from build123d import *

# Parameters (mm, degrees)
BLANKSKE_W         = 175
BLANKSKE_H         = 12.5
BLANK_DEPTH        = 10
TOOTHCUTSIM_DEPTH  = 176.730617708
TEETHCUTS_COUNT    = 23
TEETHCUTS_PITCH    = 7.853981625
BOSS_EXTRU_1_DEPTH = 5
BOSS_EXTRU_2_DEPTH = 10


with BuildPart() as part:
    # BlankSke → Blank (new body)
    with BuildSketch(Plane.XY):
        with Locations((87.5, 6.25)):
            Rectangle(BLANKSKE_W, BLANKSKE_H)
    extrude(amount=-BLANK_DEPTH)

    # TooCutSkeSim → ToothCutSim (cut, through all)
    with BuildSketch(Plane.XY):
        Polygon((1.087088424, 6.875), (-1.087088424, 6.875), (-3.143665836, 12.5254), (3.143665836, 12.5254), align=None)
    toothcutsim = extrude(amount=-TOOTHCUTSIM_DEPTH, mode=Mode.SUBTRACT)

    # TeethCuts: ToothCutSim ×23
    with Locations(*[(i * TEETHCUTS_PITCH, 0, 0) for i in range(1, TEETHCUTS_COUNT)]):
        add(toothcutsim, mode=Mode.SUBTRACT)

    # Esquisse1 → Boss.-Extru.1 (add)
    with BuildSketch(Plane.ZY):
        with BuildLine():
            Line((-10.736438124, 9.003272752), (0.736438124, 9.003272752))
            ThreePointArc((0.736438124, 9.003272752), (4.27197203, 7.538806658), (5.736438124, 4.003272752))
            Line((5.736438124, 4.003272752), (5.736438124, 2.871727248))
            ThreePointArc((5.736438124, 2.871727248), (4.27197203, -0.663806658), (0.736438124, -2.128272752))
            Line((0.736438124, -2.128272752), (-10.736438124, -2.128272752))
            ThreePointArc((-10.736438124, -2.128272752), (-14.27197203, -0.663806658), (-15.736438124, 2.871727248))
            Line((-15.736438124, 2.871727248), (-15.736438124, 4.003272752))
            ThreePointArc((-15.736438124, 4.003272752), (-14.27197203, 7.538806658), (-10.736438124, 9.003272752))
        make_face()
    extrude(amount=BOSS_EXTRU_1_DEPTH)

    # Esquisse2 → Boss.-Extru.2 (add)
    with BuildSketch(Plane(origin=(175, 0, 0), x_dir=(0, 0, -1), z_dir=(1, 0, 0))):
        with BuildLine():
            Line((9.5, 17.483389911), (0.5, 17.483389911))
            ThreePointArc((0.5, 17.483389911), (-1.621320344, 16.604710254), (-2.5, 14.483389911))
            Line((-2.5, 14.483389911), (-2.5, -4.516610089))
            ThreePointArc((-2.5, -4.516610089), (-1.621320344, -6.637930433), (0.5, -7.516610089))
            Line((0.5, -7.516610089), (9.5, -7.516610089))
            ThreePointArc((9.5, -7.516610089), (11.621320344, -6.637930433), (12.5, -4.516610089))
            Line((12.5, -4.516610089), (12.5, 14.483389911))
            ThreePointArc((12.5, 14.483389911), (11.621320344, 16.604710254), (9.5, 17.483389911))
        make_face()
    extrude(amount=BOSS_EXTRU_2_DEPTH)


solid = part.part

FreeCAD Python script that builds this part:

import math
import FreeCAD as App
import Part
import Sketcher
Q = App.Units.Quantity

doc = App.newDocument("Part")
body = doc.addObject("PartDesign::Body", "Body")

sketch1 = body.newObject("Sketcher::SketchObject", "Sketch")
sketch1.AttachmentSupport = (doc.getObject("XY_Plane"), [""])
sketch1.MapMode = "FlatFace"
sketch1.addGeometry(Part.LineSegment(App.Vector(0, 12.5, 0), App.Vector(0, 0, 0)), False)
sketch1.addGeometry(Part.LineSegment(App.Vector(0, 0, 0), App.Vector(175, 0, 0)), False)
sketch1.addGeometry(Part.LineSegment(App.Vector(175, 0, 0), App.Vector(175, 12.5, 0)), False)
sketch1.addGeometry(Part.LineSegment(App.Vector(175, 12.5, 0), App.Vector(0, 12.5, 0)), False)
sketch1.addConstraint(Sketcher.Constraint("Coincident", 0, 2, 1, 1))
sketch1.addConstraint(Sketcher.Constraint("Coincident", 1, 2, 2, 1))
sketch1.addConstraint(Sketcher.Constraint("Coincident", 2, 2, 3, 1))
sketch1.addConstraint(Sketcher.Constraint("Coincident", 3, 2, 0, 1))
sketch1.addConstraint(Sketcher.Constraint("Vertical", 0))
sketch1.addConstraint(Sketcher.Constraint("Horizontal", 1))
sketch1.addConstraint(Sketcher.Constraint("Vertical", 2))
sketch1.addConstraint(Sketcher.Constraint("Horizontal", 3))
sketch1.addConstraint(Sketcher.Constraint("Coincident", 0, 2, -1, 1))
sketch1.addConstraint(Sketcher.Constraint("DistanceX", 1, 1, 1, 2, Q("175 mm")))
sketch1.addConstraint(Sketcher.Constraint("DistanceY", 0, 2, 0, 1, Q("12.5 mm")))
pad1 = body.newObject("PartDesign::Pad", "Pad")
pad1.Profile = sketch1
pad1.Length = 10
pad1.Reversed = True

sketch2 = body.newObject("Sketcher::SketchObject", "Sketch001")
sketch2.AttachmentSupport = (doc.getObject("XY_Plane"), [""])
sketch2.MapMode = "FlatFace"
sketch2.addGeometry(Part.LineSegment(App.Vector(-1.087088, 6.875, 0), App.Vector(1.087088, 6.875, 0)), False)
sketch2.addGeometry(Part.LineSegment(App.Vector(1.087088, 6.875, 0), App.Vector(3.143666, 12.5254, 0)), False)
sketch2.addGeometry(Part.LineSegment(App.Vector(3.143666, 12.5254, 0), App.Vector(-3.143666, 12.5254, 0)), False)
sketch2.addGeometry(Part.LineSegment(App.Vector(-3.143666, 12.5254, 0), App.Vector(-1.087088, 6.875, 0)), False)
sketch2.addConstraint(Sketcher.Constraint("Coincident", 0, 2, 1, 1))
sketch2.addConstraint(Sketcher.Constraint("Coincident", 1, 2, 2, 1))
sketch2.addConstraint(Sketcher.Constraint("Coincident", 2, 2, 3, 1))
sketch2.addConstraint(Sketcher.Constraint("Coincident", 3, 2, 0, 1))
sketch2.addConstraint(Sketcher.Constraint("Horizontal", 0))
sketch2.addConstraint(Sketcher.Constraint("Horizontal", 2))
sketch2.addConstraint(Sketcher.Constraint("Equal", 1, 3))
sketch2.addConstraint(Sketcher.Constraint("Angle", 1, Q("70 deg")))
sketch2.addConstraint(Sketcher.Constraint("DistanceY", -1, 1, 0, 2, Q("6.875 mm")))
sketch2.addConstraint(Sketcher.Constraint("DistanceX", 2, 2, 2, 1, Q("6.287332 mm")))
sketch2.addConstraint(Sketcher.Constraint("DistanceY", -1, 1, 1, 2, Q("12.5254 mm")))
sketch2.addConstraint(Sketcher.Constraint("DistanceX", -1, 1, 0, 2, Q("1.087088 mm")))
pocket1 = body.newObject("PartDesign::Pocket", "Pocket")
pocket1.Profile = sketch2
pocket1.Type = "ThroughAll"
doc.recompute()

linearpattern = body.newObject("PartDesign::LinearPattern", "LinearPattern")
linearpattern.Originals = [pocket1]
linearpattern.Direction = (doc.getObject("X_Axis"), [""])
linearpattern.Mode = "offset"
linearpattern.Offset = 7.853982
linearpattern.Occurrences = 23
body.Tip = linearpattern

sketch3 = body.newObject("Sketcher::SketchObject", "Sketch002")
sketch3.AttachmentSupport = (doc.getObject("YZ_Plane"), [""])
sketch3.MapMode = "FlatFace"
sketch3.addGeometry(Part.LineSegment(App.Vector(9.003273, 0.736438, 0), App.Vector(9.003273, -10.736438, 0)), False)
sketch3.addGeometry(Part.ArcOfCircle(Part.Circle(App.Vector(4.003273, -10.736438, 0), App.Vector(0, 0, 1), 5), math.radians(-90), math.radians(0)), False)
sketch3.addGeometry(Part.LineSegment(App.Vector(4.003273, -15.736438, 0), App.Vector(2.871727, -15.736438, 0)), False)
sketch3.addGeometry(Part.ArcOfCircle(Part.Circle(App.Vector(2.871727, -10.736438, 0), App.Vector(0, 0, 1), 5), math.radians(180), math.radians(270)), False)
sketch3.addGeometry(Part.LineSegment(App.Vector(-2.128273, -10.736438, 0), App.Vector(-2.128273, 0.736438, 0)), False)
sketch3.addGeometry(Part.ArcOfCircle(Part.Circle(App.Vector(2.871727, 0.736438, 0), App.Vector(0, 0, 1), 5), math.radians(90), math.radians(180)), False)
sketch3.addGeometry(Part.LineSegment(App.Vector(2.871727, 5.736438, 0), App.Vector(4.003273, 5.736438, 0)), False)
sketch3.addGeometry(Part.ArcOfCircle(Part.Circle(App.Vector(4.003273, 0.736438, 0), App.Vector(0, 0, 1), 5), math.radians(0), math.radians(90)), False)
sketch3.addConstraint(Sketcher.Constraint("Tangent", 0, 2, 1, 2))
sketch3.addConstraint(Sketcher.Constraint("Tangent", 1, 1, 2, 1))
sketch3.addConstraint(Sketcher.Constraint("Tangent", 2, 2, 3, 2))
sketch3.addConstraint(Sketcher.Constraint("Tangent", 3, 1, 4, 1))
sketch3.addConstraint(Sketcher.Constraint("Tangent", 4, 2, 5, 2))
sketch3.addConstraint(Sketcher.Constraint("Tangent", 5, 1, 6, 1))
sketch3.addConstraint(Sketcher.Constraint("Tangent", 6, 2, 7, 2))
sketch3.addConstraint(Sketcher.Constraint("Tangent", 7, 1, 0, 1))
sketch3.addConstraint(Sketcher.Constraint("Vertical", 0))
sketch3.addConstraint(Sketcher.Constraint("Horizontal", 2))
sketch3.addConstraint(Sketcher.Constraint("Vertical", 4))
sketch3.addConstraint(Sketcher.Constraint("Horizontal", 6))
sketch3.addConstraint(Sketcher.Constraint("Equal", 1, 3))
sketch3.addConstraint(Sketcher.Constraint("Equal", 3, 5))
sketch3.addConstraint(Sketcher.Constraint("Equal", 5, 7))
sketch3.addConstraint(Sketcher.Constraint("Radius", 1, Q("5 mm")))
sketch3.addConstraint(Sketcher.Constraint("DistanceX", 2, 2, 2, 1, Q("1.131546 mm")))
sketch3.addConstraint(Sketcher.Constraint("DistanceY", 0, 2, 0, 1, Q("11.472876 mm")))
sketch3.addConstraint(Sketcher.Constraint("DistanceY", 1, 3, -1, 1, Q("10.736438 mm")))
sketch3.addConstraint(Sketcher.Constraint("DistanceX", -1, 1, 1, 3, Q("4.003273 mm")))
pad2 = body.newObject("PartDesign::Pad", "Pad001")
pad2.Profile = sketch3
pad2.Length = 5
pad2.Reversed = True

sketch4 = body.newObject("Sketcher::SketchObject", "Sketch003")
sketch4.AttachmentSupport = (doc.getObject("YZ_Plane"), [""])
sketch4.MapMode = "FlatFace"
sketch4.AttachmentOffset = App.Placement(App.Vector(0, 0, 175), App.Rotation())
sketch4.addGeometry(Part.LineSegment(App.Vector(17.48339, -9.5, 0), App.Vector(17.48339, -0.5, 0)), False)
sketch4.addGeometry(Part.ArcOfCircle(Part.Circle(App.Vector(14.48339, -0.5, 0), App.Vector(0, 0, 1), 3), math.radians(0), math.radians(90)), False)
sketch4.addGeometry(Part.LineSegment(App.Vector(14.48339, 2.5, 0), App.Vector(-4.51661, 2.5, 0)), False)
sketch4.addGeometry(Part.ArcOfCircle(Part.Circle(App.Vector(-4.51661, -0.5, 0), App.Vector(0, 0, 1), 3), math.radians(90), math.radians(180)), False)
sketch4.addGeometry(Part.LineSegment(App.Vector(-7.51661, -0.5, 0), App.Vector(-7.51661, -9.5, 0)), False)
sketch4.addGeometry(Part.ArcOfCircle(Part.Circle(App.Vector(-4.51661, -9.5, 0), App.Vector(0, 0, 1), 3), math.radians(180), math.radians(270)), False)
sketch4.addGeometry(Part.LineSegment(App.Vector(-4.51661, -12.5, 0), App.Vector(14.48339, -12.5, 0)), False)
sketch4.addGeometry(Part.ArcOfCircle(Part.Circle(App.Vector(14.48339, -9.5, 0), App.Vector(0, 0, 1), 3), math.radians(-90), math.radians(0)), False)
sketch4.addConstraint(Sketcher.Constraint("Tangent", 0, 2, 1, 1))
sketch4.addConstraint(Sketcher.Constraint("Tangent", 1, 2, 2, 1))
sketch4.addConstraint(Sketcher.Constraint("Tangent", 2, 2, 3, 1))
sketch4.addConstraint(Sketcher.Constraint("Tangent", 3, 2, 4, 1))
sketch4.addConstraint(Sketcher.Constraint("Tangent", 4, 2, 5, 1))
sketch4.addConstraint(Sketcher.Constraint("Tangent", 5, 2, 6, 1))
sketch4.addConstraint(Sketcher.Constraint("Tangent", 6, 2, 7, 1))
sketch4.addConstraint(Sketcher.Constraint("Tangent", 7, 2, 0, 1))
sketch4.addConstraint(Sketcher.Constraint("Vertical", 0))
sketch4.addConstraint(Sketcher.Constraint("Horizontal", 2))
sketch4.addConstraint(Sketcher.Constraint("Vertical", 4))
sketch4.addConstraint(Sketcher.Constraint("Horizontal", 6))
sketch4.addConstraint(Sketcher.Constraint("Equal", 1, 3))
sketch4.addConstraint(Sketcher.Constraint("Equal", 3, 5))
sketch4.addConstraint(Sketcher.Constraint("Equal", 5, 7))
sketch4.addConstraint(Sketcher.Constraint("Radius", 1, Q("3 mm")))
sketch4.addConstraint(Sketcher.Constraint("DistanceX", 2, 2, 2, 1, Q("19 mm")))
sketch4.addConstraint(Sketcher.Constraint("DistanceY", 0, 1, 0, 2, Q("9 mm")))
sketch4.addConstraint(Sketcher.Constraint("DistanceY", 1, 3, -1, 1, Q("0.5 mm")))
sketch4.addConstraint(Sketcher.Constraint("DistanceX", -1, 1, 1, 3, Q("14.48339 mm")))
pad3 = body.newObject("PartDesign::Pad", "Pad002")
pad3.Profile = sketch4
pad3.Length = 10

doc.recompute()
